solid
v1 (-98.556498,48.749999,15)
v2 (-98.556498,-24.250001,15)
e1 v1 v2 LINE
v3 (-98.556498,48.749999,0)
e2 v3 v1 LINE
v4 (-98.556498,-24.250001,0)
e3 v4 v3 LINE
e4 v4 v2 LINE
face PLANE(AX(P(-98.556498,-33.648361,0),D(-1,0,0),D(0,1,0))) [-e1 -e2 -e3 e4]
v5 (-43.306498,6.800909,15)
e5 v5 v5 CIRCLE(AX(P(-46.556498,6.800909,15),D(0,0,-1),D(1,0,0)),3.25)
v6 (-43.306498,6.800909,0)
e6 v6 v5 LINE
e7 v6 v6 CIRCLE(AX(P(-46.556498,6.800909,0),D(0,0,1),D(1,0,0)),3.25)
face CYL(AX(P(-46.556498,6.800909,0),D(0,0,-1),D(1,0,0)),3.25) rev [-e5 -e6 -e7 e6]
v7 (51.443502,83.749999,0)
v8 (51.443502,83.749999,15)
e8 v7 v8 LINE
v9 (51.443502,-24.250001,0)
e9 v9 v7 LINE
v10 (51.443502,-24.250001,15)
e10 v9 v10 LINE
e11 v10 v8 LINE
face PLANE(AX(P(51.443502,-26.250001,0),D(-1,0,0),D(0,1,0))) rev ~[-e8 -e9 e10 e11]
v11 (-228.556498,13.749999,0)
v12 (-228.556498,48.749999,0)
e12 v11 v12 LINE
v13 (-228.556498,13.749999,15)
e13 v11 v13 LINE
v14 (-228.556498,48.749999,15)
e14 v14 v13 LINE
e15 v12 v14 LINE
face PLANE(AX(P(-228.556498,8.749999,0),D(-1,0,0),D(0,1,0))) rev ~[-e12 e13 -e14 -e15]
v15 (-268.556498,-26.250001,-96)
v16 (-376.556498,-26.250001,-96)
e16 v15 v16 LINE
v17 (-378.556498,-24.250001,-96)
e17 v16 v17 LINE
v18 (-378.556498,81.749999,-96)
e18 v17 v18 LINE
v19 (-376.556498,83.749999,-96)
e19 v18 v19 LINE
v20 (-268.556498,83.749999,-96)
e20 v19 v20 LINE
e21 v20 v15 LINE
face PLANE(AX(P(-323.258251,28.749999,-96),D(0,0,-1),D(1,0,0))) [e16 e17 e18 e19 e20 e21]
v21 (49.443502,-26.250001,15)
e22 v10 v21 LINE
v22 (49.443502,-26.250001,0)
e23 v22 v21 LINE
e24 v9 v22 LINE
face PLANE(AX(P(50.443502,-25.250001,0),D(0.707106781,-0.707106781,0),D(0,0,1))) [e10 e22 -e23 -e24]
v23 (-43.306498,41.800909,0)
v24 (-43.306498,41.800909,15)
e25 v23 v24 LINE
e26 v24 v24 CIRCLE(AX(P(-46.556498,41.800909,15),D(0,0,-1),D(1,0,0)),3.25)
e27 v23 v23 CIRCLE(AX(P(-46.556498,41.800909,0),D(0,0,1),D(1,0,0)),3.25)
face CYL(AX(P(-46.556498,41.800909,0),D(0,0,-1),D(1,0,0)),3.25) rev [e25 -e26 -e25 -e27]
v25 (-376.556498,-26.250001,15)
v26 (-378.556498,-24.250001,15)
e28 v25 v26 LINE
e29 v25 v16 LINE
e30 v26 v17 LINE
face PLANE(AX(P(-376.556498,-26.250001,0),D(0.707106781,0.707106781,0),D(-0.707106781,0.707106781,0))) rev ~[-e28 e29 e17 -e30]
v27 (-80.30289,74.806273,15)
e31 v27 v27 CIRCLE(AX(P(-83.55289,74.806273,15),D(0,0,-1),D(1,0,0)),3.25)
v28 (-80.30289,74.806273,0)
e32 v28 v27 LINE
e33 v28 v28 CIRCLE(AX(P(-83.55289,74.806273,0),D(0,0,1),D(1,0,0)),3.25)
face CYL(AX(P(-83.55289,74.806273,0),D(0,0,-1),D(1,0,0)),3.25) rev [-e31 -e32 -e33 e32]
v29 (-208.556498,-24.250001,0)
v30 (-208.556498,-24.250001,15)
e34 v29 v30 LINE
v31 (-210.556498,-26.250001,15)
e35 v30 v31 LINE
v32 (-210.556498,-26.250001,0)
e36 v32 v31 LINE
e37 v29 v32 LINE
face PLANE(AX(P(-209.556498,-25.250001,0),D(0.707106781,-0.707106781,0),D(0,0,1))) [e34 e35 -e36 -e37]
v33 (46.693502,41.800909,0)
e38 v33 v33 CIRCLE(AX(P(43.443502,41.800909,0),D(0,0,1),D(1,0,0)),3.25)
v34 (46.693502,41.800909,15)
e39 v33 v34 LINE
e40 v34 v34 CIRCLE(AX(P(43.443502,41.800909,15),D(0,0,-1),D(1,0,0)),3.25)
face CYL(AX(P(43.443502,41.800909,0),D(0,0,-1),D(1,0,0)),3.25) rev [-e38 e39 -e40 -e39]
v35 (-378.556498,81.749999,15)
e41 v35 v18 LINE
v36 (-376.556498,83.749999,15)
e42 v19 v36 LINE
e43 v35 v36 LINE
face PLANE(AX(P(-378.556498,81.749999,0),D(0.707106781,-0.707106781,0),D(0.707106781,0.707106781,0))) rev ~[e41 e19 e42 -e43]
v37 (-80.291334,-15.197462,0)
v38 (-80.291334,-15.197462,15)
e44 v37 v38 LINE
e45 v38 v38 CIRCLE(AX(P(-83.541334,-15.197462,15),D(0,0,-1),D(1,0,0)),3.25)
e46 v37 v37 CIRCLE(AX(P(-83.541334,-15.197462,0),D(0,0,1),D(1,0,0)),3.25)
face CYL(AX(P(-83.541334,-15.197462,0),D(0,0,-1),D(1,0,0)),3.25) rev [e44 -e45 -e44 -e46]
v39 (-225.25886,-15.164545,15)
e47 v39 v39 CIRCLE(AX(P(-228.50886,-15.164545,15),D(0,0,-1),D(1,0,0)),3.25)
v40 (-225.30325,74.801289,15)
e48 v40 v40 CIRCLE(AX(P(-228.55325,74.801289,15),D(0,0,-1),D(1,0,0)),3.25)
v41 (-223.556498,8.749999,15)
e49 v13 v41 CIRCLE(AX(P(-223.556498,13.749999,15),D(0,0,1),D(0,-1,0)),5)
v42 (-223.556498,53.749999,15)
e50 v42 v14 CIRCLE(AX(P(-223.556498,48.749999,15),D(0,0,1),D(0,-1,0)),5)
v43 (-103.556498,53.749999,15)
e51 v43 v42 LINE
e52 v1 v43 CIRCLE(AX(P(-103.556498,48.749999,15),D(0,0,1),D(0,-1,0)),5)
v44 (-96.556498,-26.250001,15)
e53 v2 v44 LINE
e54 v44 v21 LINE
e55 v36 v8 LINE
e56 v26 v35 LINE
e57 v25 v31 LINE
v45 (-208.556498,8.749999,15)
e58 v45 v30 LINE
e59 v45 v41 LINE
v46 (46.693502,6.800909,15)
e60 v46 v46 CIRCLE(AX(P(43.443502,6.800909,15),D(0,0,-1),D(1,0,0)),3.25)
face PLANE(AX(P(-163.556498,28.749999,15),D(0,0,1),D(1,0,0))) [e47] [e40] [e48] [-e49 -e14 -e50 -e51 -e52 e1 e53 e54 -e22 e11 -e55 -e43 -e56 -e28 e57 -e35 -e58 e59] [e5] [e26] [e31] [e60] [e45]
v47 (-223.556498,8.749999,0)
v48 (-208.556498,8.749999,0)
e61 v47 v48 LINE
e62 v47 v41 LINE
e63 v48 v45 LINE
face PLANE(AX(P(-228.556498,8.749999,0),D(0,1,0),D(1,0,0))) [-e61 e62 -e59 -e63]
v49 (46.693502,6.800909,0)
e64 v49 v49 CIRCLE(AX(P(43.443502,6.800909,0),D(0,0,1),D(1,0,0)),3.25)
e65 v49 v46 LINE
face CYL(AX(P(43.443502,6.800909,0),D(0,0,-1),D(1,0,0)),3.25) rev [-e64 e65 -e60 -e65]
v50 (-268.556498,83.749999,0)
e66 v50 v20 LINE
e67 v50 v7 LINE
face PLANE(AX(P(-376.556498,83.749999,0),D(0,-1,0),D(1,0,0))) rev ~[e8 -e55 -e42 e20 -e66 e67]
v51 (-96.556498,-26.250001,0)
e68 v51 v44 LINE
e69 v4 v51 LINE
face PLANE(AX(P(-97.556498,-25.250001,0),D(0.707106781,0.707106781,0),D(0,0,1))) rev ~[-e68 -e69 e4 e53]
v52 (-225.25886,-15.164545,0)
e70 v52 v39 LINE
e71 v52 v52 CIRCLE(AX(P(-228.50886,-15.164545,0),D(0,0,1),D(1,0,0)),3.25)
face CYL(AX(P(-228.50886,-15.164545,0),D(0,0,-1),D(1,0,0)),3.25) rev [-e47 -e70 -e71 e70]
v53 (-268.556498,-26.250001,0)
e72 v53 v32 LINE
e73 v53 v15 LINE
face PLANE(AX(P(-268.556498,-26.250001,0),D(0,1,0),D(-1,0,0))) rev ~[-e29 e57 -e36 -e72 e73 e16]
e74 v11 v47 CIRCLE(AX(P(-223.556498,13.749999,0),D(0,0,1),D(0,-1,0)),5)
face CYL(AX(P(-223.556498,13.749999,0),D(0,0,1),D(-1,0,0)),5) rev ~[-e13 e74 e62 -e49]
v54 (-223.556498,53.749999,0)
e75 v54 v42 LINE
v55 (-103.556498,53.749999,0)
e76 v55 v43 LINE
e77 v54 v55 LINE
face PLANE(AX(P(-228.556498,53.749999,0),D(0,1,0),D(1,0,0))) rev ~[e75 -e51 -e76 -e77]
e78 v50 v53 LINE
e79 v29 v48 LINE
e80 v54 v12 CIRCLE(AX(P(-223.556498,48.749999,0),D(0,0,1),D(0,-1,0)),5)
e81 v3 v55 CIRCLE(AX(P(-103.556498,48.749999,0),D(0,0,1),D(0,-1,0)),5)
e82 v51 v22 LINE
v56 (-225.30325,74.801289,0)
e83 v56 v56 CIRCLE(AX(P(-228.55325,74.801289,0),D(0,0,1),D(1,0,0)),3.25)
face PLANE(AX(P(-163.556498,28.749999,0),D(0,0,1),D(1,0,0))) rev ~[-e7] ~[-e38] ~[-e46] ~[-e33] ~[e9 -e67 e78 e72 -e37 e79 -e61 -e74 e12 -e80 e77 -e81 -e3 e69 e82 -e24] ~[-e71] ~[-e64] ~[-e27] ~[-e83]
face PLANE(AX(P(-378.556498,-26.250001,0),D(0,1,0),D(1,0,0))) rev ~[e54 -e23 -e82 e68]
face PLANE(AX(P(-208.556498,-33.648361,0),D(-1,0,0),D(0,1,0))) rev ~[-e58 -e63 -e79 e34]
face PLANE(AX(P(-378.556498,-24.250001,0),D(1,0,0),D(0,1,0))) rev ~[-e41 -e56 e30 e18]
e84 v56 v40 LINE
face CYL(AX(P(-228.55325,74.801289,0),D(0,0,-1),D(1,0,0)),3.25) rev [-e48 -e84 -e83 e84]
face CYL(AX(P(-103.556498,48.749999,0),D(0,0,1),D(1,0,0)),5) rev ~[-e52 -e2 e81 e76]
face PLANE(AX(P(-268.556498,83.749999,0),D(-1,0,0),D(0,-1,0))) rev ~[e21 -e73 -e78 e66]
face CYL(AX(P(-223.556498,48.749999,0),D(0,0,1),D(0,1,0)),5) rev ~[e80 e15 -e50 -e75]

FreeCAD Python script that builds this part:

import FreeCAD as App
import Part
import Sketcher

V = App.Vector
Q = App.Units.Quantity


def edges_at(feature, points):
    """Names of the edges that pass closest to the given points."""
    edges = feature.Shape.Edges
    near = lambda p: min(range(len(edges)), key=lambda i: edges[i].distToShape(Part.Vertex(*p))[0])
    return sorted({f"Edge{near(p) + 1}" for p in points})

doc = App.newDocument("Part")
params = doc.addObject("Spreadsheet::Sheet", "Params")
for row, (alias, value) in enumerate([
    ("sketch1_width", "430 mm"),
    ("sketch1_height", "110 mm"),
    ("pad1_length", "15 mm"),
    ("sketch2_width", "130 mm"),
    ("sketch2_height", "45 mm"),
    ("pocket1_length", "25 mm"),
    ("sketch3_width", "110 mm"),
    ("pocket2_length", "25 mm"),
    ("fillet_radius", "5 mm"),
    ("chamfer_size", "2 mm"),
    ("sketch4_width", "108 mm"),
    ("sketch4_height", "106 mm"),
    ("sketch4_height2", "110 mm"),
    ("pad2_length", "96 mm"),
    ("sketch5_diameter", "6.5 mm"),
    ("pocket3_length", "25 mm"),
    ("sketch6_diameter", "6.5 mm"),
    ("pocket4_length", "25 mm"),
], start=1):
    params.set(f"A{row}", alias)
    params.set(f"B{row}", "=" + value)
    params.setAlias(f"B{row}", alias)

body = doc.addObject("PartDesign::Body", "Body")

# Sketch on XY plane
sketch1 = body.newObject("Sketcher::SketchObject", "Sketch")
sketch1.AttachmentSupport = (doc.getObject("XY_Plane"), [""])
sketch1.MapMode = "FlatFace"
sketch1.addGeometry([
    Part.LineSegment(V(-379, 84, 0), V(-379, -26, 0)),
    Part.LineSegment(V(-379, -26, 0), V(51, -26, 0)),
    Part.LineSegment(V(51, -26, 0), V(51, 84, 0)),
    Part.LineSegment(V(51, 84, 0), V(-379, 84, 0)),
], False)
sketch1.addConstraint([
    Sketcher.Constraint("Coincident", 0, 2, 1, 1),
    Sketcher.Constraint("Coincident", 1, 2, 2, 1),
    Sketcher.Constraint("Coincident", 2, 2, 3, 1),
    Sketcher.Constraint("Coincident", 3, 2, 0, 1),
    Sketcher.Constraint("Vertical", 0),
    Sketcher.Constraint("Horizontal", 1),
    Sketcher.Constraint("Vertical", 2),
    Sketcher.Constraint("Horizontal", 3),
    Sketcher.Constraint("DistanceX", 1, 1, 1, 2, Q("430 mm")),
    Sketcher.Constraint("DistanceY", 0, 2, 0, 1, Q("110 mm")),
    Sketcher.Constraint("DistanceY", 0, 2, -1, 1, Q("26.250001 mm")),
    Sketcher.Constraint("DistanceX", 0, 2, -1, 1, Q("378.556498 mm")),
])
sketch1.setExpression("Constraints[8]", "Params.sketch1_width")
sketch1.setExpression("Constraints[9]", "Params.sketch1_height")
pad1 = body.newObject("PartDesign::Pad", "Pad")
pad1.Profile = sketch1
pad1.setExpression("Length", "Params.pad1_length")

# Sketch on XY plane
sketch2 = body.newObject("Sketcher::SketchObject", "Sketch001")
sketch2.AttachmentSupport = (doc.getObject("XY_Plane"), [""])
sketch2.MapMode = "FlatFace"
sketch2.addGeometry([
    Part.LineSegment(V(-229, 54, 0), V(-229, 9, 0)),
    Part.LineSegment(V(-229, 9, 0), V(-99, 9, 0)),
    Part.LineSegment(V(-99, 9, 0), V(-99, 54, 0)),
    Part.LineSegment(V(-99, 54, 0), V(-229, 54, 0)),
], False)
sketch2.addConstraint([
    Sketcher.Constraint("Coincident", 0, 2, 1, 1),
    Sketcher.Constraint("Coincident", 1, 2, 2, 1),
    Sketcher.Constraint("Coincident", 2, 2, 3, 1),
    Sketcher.Constraint("Coincident", 3, 2, 0, 1),
    Sketcher.Constraint("Vertical", 0),
    Sketcher.Constraint("Horizontal", 1),
    Sketcher.Constraint("Vertical", 2),
    Sketcher.Constraint("Horizontal", 3),
    Sketcher.Constraint("DistanceX", 1, 1, 1, 2, Q("130 mm")),
    Sketcher.Constraint("DistanceY", 0, 2, 0, 1, Q("45 mm")),
    Sketcher.Constraint("DistanceY", -1, 1, 0, 2, Q("8.749999 mm")),
    Sketcher.Constraint("DistanceX", 0, 2, -1, 1, Q("228.556498 mm")),
])
sketch2.setExpression("Constraints[8]", "Params.sketch2_width")
sketch2.setExpression("Constraints[9]", "Params.sketch2_height")
pocket1 = body.newObject("PartDesign::Pocket", "Pocket")
pocket1.Profile = sketch2
pocket1.setExpression("Length", "Params.pocket1_length")
pocket1.Reversed = True

# Sketch on XY plane
sketch3 = body.newObject("Sketcher::SketchObject", "Sketch002")
sketch3.AttachmentSupport = (doc.getObject("XY_Plane"), [""])
sketch3.MapMode = "FlatFace"
sketch3.addGeometry([
    Part.LineSegment(V(-209, 12, 0), V(-209, -34, 0)),
    Part.LineSegment(V(-209, -34, 0), V(-99, -34, 0)),
    Part.LineSegment(V(-99, -34, 0), V(-99, 12, 0)),
    Part.LineSegment(V(-99, 12, 0), V(-209, 12, 0)),
], False)
sketch3.addConstraint([
    Sketcher.Constraint("Coincident", 0, 2, 1, 1),
    Sketcher.Constraint("Coincident", 1, 2, 2, 1),
    Sketcher.Constraint("Coincident", 2, 2, 3, 1),
    Sketcher.Constraint("Coincident", 3, 2, 0, 1),
    Sketcher.Constraint("Vertical", 0),
    Sketcher.Constraint("Horizontal", 1),
    Sketcher.Constraint("Vertical", 2),
    Sketcher.Constraint("Horizontal", 3),
    Sketcher.Constraint("DistanceX", 1, 1, 1, 2, Q("110 mm")),
    Sketcher.Constraint("DistanceY", 0, 2, 0, 1, Q("45.90249 mm")),
    Sketcher.Constraint("DistanceY", 0, 2, -1, 1, Q("33.648361 mm")),
    Sketcher.Constraint("DistanceX", 0, 2, -1, 1, Q("208.556498 mm")),
])
sketch3.setExpression("Constraints[8]", "Params.sketch3_width")
pocket2 = body.newObject("PartDesign::Pocket", "Pocket001")
pocket2.Profile = sketch3
pocket2.setExpression("Length", "Params.pocket2_length")
pocket2.Reversed = True
doc.recompute()

fillet = body.newObject("PartDesign::Fillet", "Fillet")
fillet.Base = (pocket2, edges_at(pocket2, [(-228.556, 53.75, 7.5), (-98.556, 53.75, 7.5), (-228.556, 8.75, 7.5)]))
fillet.setExpression("Radius", "Params.fillet_radius")
doc.recompute()

chamfer = body.newObject("PartDesign::Chamfer", "Chamfer")
chamfer.Base = (fillet, edges_at(fillet, [
    (-208.556, -26.25, 7.5),
    (-98.556, -26.25, 7.5),
    (-378.556, -26.25, 7.5),
    (-378.556, 83.75, 7.5),
    (51.444, -26.25, 7.5),
]))
chamfer.setExpression("Size", "Params.chamfer_size")

# Sketch on XY plane
sketch4 = body.newObject("Sketcher::SketchObject", "Sketch003")
sketch4.AttachmentSupport = (doc.getObject("XY_Plane"), [""])
sketch4.MapMode = "FlatFace"
sketch4.addGeometry([
    Part.LineSegment(V(-268.6, -26.3, 0), V(-376.6, -26.3, 0)),  # 0
    Part.LineSegment(V(-376.6, -26.3, 0), V(-378.6, -24.3, 0)),  # 1
    Part.LineSegment(V(-378.6, -24.3, 0), V(-378.6, 81.7, 0)),  # 2
    Part.LineSegment(V(-378.6, 81.7, 0), V(-376.6, 83.7, 0)),  # 3
    Part.LineSegment(V(-376.6, 83.7, 0), V(-268.6, 83.7, 0)),  # 4
    Part.LineSegment(V(-268.6, 83.7, 0), V(-268.6, -26.3, 0)),  # 5
], False)
sketch4.addConstraint([
    Sketcher.Constraint("Coincident", 0, 2, 1, 1),
    Sketcher.Constraint("Coincident", 1, 2, 2, 1),
    Sketcher.Constraint("Coincident", 2, 2, 3, 1),
    Sketcher.Constraint("Coincident", 3, 2, 4, 1),
    Sketcher.Constraint("Coincident", 4, 2, 5, 1),
    Sketcher.Constraint("Coincident", 5, 2, 0, 1),
    Sketcher.Constraint("Horizontal", 0),
    Sketcher.Constraint("Vertical", 2),
    Sketcher.Constraint("Horizontal", 4),
    Sketcher.Constraint("Vertical", 5),
    Sketcher.Constraint("Perpendicular", 1, 3),
    Sketcher.Constraint("Vertical", 0, 2, 3, 2),
    Sketcher.Constraint("Equal", 1, 3),
    Sketcher.Constraint("DistanceX", 0, 2, 0, 1, Q("108 mm")),
    Sketcher.Constraint("DistanceY", 2, 1, 2, 2, Q("106 mm")),
    Sketcher.Constraint("DistanceY", 5, 2, 5, 1, Q("110 mm")),
    Sketcher.Constraint("DistanceY", 0, 2, -1, 1, Q("26.250001 mm")),
    Sketcher.Constraint("DistanceX", 0, 2, -1, 1, Q("376.556498 mm")),
])
sketch4.setExpression("Constraints[13]", "Params.sketch4_width")
sketch4.setExpression("Constraints[14]", "Params.sketch4_height")
sketch4.setExpression("Constraints[15]", "Params.sketch4_height2")
pad2 = body.newObject("PartDesign::Pad", "Pad001")
pad2.Profile = sketch4
pad2.setExpression("Length", "Params.pad2_length")
pad2.Reversed = True

# Sketch on XY plane
sketch5 = body.newObject("Sketcher::SketchObject", "Sketch004")
sketch5.AttachmentSupport = (doc.getObject("XY_Plane"), [""])
sketch5.MapMode = "FlatFace"
sketch5.addGeometry([
    Part.Circle(V(-228.5, -15.2, 0), V(0, 0, 1), 3.2),
    Part.Circle(V(-228.6, 74.8, 0), V(0, 0, 1), 3.2),
    Part.Circle(V(-83.6, 74.8, 0), V(0, 0, 1), 3.2),
    Part.Circle(V(-83.5, -15.2, 0), V(0, 0, 1), 3.2),
], False)
sketch5.addConstraint([
    Sketcher.Constraint("Equal", 0, 1),
    Sketcher.Constraint("Equal", 1, 2),
    Sketcher.Constraint("Equal", 2, 3),
    Sketcher.Constraint("Diameter", 0, Q("6.5 mm")),
    Sketcher.Constraint("DistanceX", 0, 3, -1, 1, Q("228.50886 mm")),
    Sketcher.Constraint("DistanceX", 1, 3, -1, 1, Q("228.55325 mm")),
    Sketcher.Constraint("DistanceY", -1, 1, 1, 3, Q("74.801289 mm")),
    Sketcher.Constraint("DistanceX", 2, 3, -1, 1, Q("83.55289 mm")),
    Sketcher.Constraint("DistanceY", 3, 3, 1, 3, Q("89.998751 mm")),
    Sketcher.Constraint("DistanceY", 0, 3, -1, 1, Q("15.164545 mm")),
    Sketcher.Constraint("DistanceY", -1, 1, 2, 3, Q("74.806273 mm")),
    Sketcher.Constraint("DistanceX", 3, 3, -1, 1, Q("83.541334 mm")),
])
sketch5.setExpression("Constraints[3]", "Params.sketch5_diameter")
pocket3 = body.newObject("PartDesign::Pocket", "Pocket002")
pocket3.Profile = sketch5
pocket3.setExpression("Length", "Params.pocket3_length")
pocket3.Reversed = True

# Sketch on XY plane
sketch6 = body.newObject("Sketcher::SketchObject", "Sketch005")
sketch6.AttachmentSupport = (doc.getObject("XY_Plane"), [""])
sketch6.MapMode = "FlatFace"
sketch6.addGeometry([
    Part.Circle(V(-46.6, 6.8, 0), V(0, 0, 1), 3.2),
    Part.Circle(V(-46.6, 41.8, 0), V(0, 0, 1), 3.2),
    Part.Circle(V(43.4, 6.8, 0), V(0, 0, 1), 3.2),
    Part.Circle(V(43.4, 41.8, 0), V(0, 0, 1), 3.2),
], False)
sketch6.addConstraint([
    Sketcher.Constraint("Equal", 0, 1),
    Sketcher.Constraint("Equal", 1, 2),
    Sketcher.Constraint("Equal", 2, 3),
    Sketcher.Constraint("Horizontal", 0, 3, 2, 3),
    Sketcher.Constraint("Horizontal", 1, 3, 3, 3),
    Sketcher.Constraint("Vertical", 0, 3, 1, 3),
    Sketcher.Constraint("Vertical", 2, 3, 3, 3),
    Sketcher.Constraint("Diameter", 0, Q("6.5 mm")),
    Sketcher.Constraint("DistanceY", 0, 3, 1, 3, Q("35 mm")),
    Sketcher.Constraint("DistanceX", 0, 3, 2, 3, Q("90 mm")),
    Sketcher.Constraint("DistanceY", -1, 1, 0, 3, Q("6.800909 mm")),
    Sketcher.Constraint("DistanceX", 0, 3, -1, 1, Q("46.556498 mm")),
])
sketch6.setExpression("Constraints[7]", "Params.sketch6_diameter")
pocket4 = body.newObject("PartDesign::Pocket", "Pocket003")
pocket4.Profile = sketch6
pocket4.setExpression("Length", "Params.pocket4_length")
pocket4.Reversed = True

doc.recompute()
